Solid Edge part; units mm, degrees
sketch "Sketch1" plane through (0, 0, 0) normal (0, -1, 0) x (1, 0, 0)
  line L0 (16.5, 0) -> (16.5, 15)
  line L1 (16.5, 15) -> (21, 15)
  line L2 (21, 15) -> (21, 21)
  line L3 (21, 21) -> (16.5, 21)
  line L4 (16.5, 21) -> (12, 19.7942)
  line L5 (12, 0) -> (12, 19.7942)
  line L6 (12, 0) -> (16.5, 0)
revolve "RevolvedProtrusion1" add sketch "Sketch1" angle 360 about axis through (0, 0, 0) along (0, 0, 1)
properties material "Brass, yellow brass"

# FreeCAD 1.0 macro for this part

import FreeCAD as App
import Part
import Sketcher

V = App.Vector
Q = App.Units.Quantity


def add_polygon(sketch, points):
    """Adds a closed chain of lines whose ends are joined by coincident constraints."""
    first, n = sketch.GeometryCount, len(points)
    for a, b in zip(points, points[1:] + points[:1]):
        sketch.addGeometry(Part.LineSegment(App.Vector(*a, 0), App.Vector(*b, 0)), False)
    for i in range(n):
        sketch.addConstraint(Sketcher.Constraint("Coincident", first + i, 2, first + (i + 1) % n, 1))

doc = App.newDocument("Part")
params = doc.addObject("Spreadsheet::Sheet", "Params")
for row, (alias, value) in enumerate([
    ("sketch1_height", "15 mm"),
    ("sketch1_height2", "6 mm"),
    ("sketch1_width", "4.5 mm"),
    ("revolution_angle", "360 deg"),
], start=1):
    params.set(f"A{row}", alias)
    params.set(f"B{row}", "=" + value)
    params.setAlias(f"B{row}", alias)

body = doc.addObject("PartDesign::Body", "Body")

sketch1 = body.newObject("Sketcher::SketchObject", "Sketch")
sketch1.AttachmentSupport = (doc.getObject("XZ_Plane"), [""])
sketch1.MapMode = "FlatFace"
add_polygon(sketch1, [(12, 0), (16.5, 0), (16.5, 15), (21, 15), (21, 21), (16.5, 21), (12, 19.7942)])
sketch1.addConstraint(Sketcher.Constraint("Horizontal", 0))
sketch1.addConstraint(Sketcher.Constraint("Vertical", 1))
sketch1.addConstraint(Sketcher.Constraint("Horizontal", 2))
sketch1.addConstraint(Sketcher.Constraint("Vertical", 3))
sketch1.addConstraint(Sketcher.Constraint("Horizontal", 4))
sketch1.addConstraint(Sketcher.Constraint("Vertical", 6))
sketch1.addConstraint(Sketcher.Constraint("PointOnObject", 0, 2, -1))
sketch1.addConstraint(Sketcher.Constraint("Vertical", 1, 2, 4, 2))
sketch1.addConstraint(Sketcher.Constraint("Equal", 0, 2))
sketch1.addConstraint(Sketcher.Constraint("DistanceY", 1, 1, 1, 2, Q("15 mm")))
sketch1.addConstraint(Sketcher.Constraint("DistanceY", 3, 1, 3, 2, Q("6 mm")))
sketch1.addConstraint(Sketcher.Constraint("Angle", 5, Q("-164.9997 deg")))
sketch1.addConstraint(Sketcher.Constraint("DistanceX", 0, 1, 0, 2, Q("4.5 mm")))
sketch1.addConstraint(Sketcher.Constraint("DistanceX", -1, 1, 2, 2, Q("21 mm")))
sketch1.setExpression("Constraints[16]", "Params.sketch1_height")
sketch1.setExpression("Constraints[17]", "Params.sketch1_height2")
sketch1.setExpression("Constraints[19]", "Params.sketch1_width")
revolution = body.newObject("PartDesign::Revolution", "Revolution")
revolution.Profile = sketch1
revolution.ReferenceAxis = (sketch1, ["V_Axis"])
revolution.setExpression("Angle", "Params.revolution_angle")

doc.recompute()
